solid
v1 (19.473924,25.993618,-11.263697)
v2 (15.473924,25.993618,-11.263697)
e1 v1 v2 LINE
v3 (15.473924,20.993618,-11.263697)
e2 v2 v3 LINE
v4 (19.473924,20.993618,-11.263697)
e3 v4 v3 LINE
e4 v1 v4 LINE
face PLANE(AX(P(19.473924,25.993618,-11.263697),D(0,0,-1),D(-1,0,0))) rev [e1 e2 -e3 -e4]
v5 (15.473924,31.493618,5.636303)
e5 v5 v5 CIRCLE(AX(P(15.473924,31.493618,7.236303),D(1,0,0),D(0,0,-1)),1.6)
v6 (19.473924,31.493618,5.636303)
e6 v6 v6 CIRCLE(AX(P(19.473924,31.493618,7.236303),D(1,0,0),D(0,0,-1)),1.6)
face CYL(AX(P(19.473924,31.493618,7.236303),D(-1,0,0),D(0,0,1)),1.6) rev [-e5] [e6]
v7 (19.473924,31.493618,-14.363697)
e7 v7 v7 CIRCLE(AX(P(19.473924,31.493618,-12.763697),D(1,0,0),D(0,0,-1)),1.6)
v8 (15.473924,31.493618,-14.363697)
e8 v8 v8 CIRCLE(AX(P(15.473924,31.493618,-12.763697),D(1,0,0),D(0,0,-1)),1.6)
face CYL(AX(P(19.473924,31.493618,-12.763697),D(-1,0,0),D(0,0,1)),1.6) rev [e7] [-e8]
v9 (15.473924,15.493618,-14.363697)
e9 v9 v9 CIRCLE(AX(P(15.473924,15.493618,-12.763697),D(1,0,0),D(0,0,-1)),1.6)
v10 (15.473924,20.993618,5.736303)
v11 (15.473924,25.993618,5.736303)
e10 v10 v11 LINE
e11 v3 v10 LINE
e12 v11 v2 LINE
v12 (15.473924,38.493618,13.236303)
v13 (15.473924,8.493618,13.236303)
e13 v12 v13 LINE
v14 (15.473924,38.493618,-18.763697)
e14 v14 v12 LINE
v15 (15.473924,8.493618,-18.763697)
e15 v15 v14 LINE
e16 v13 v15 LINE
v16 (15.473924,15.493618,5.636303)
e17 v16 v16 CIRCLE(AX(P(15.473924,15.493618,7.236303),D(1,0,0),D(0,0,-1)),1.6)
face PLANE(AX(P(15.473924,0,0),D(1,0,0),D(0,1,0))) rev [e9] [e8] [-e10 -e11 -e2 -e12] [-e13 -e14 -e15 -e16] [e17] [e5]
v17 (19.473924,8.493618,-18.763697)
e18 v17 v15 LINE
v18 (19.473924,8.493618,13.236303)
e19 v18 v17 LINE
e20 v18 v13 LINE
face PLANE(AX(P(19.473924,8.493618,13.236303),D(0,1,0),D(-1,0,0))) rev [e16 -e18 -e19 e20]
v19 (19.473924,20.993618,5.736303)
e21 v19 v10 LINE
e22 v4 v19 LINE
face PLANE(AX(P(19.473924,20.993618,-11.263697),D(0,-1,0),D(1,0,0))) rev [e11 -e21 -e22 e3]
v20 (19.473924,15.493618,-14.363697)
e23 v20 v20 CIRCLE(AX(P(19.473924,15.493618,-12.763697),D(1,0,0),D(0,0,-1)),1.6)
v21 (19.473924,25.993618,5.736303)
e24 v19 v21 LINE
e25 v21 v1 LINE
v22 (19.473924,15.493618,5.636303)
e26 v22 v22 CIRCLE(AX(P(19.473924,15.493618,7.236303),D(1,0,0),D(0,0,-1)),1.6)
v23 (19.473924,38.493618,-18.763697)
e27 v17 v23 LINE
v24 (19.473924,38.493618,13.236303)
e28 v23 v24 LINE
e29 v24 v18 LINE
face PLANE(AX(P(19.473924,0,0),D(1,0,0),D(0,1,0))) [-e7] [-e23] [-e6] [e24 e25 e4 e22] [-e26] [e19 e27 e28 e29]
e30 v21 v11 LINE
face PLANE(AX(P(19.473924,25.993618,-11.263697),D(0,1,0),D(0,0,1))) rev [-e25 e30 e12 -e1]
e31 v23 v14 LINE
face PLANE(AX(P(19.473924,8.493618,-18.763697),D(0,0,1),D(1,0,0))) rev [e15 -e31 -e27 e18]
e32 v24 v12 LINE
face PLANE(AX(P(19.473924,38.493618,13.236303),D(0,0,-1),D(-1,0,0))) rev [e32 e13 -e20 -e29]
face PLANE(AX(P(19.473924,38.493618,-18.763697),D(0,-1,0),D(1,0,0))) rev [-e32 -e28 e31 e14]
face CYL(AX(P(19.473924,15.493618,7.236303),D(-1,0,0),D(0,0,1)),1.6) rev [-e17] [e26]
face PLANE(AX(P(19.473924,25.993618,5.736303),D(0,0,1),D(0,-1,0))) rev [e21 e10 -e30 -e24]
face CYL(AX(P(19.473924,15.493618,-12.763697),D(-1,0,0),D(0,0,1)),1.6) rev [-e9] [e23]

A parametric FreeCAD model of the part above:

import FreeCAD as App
import Part
import Sketcher
from FreeCAD import Vector


def add_polygon(sketch, points):
    """Adds a closed chain of lines whose ends are joined by coincident constraints."""
    first, n = sketch.GeometryCount, len(points)
    for a, b in zip(points, points[1:] + points[:1]):
        sketch.addGeometry(Part.LineSegment(App.Vector(*a, 0), App.Vector(*b, 0)), False)
    for i in range(n):
        sketch.addConstraint(Sketcher.Constraint("Coincident", first + i, 2, first + (i + 1) % n, 1))

doc = App.newDocument("Part")
body = doc.addObject("PartDesign::Body", "Body")

# Sketch on YZ plane
sketch1 = doc.addObject("Sketcher::SketchObject", "Sketch")
body.addObject(sketch1)
sketch1.AttachmentSupport = (doc.YZ_Plane, [""])
sketch1.MapMode = "FlatFace"
sketch1.AttachmentOffset = App.Placement(Vector(0, 0, 15.473924), App.Rotation())
add_polygon(sketch1, [(38.5, 13.2), (8.5, 13.2), (8.5, -18.8), (38.5, -18.8)])  # lines 0-3
sketch1.addGeometry(Part.Circle(Vector(15.5, 7.2, 0), Vector(0, 0, 1), 1.6), False)  # 4
sketch1.addGeometry(Part.Circle(Vector(15.5, -12.8, 0), Vector(0, 0, 1), 1.6), False)  # 5
sketch1.addGeometry(Part.Circle(Vector(31.5, 7.2, 0), Vector(0, 0, 1), 1.6), False)  # 6
sketch1.addGeometry(Part.Circle(Vector(31.5, -12.8, 0), Vector(0, 0, 1), 1.6), False)  # 7
sketch1.addConstraint([
    Sketcher.Constraint("Horizontal", 0),
    Sketcher.Constraint("Vertical", 1),
    Sketcher.Constraint("Horizontal", 2),
    Sketcher.Constraint("Vertical", 3),
    Sketcher.Constraint("Equal", 4, 5),
    Sketcher.Constraint("Equal", 5, 6),
    Sketcher.Constraint("Equal", 6, 7),
    Sketcher.Constraint("Horizontal", 4, 3, 6, 3),
    Sketcher.Constraint("Horizontal", 5, 3, 7, 3),
    Sketcher.Constraint("Vertical", 4, 3, 5, 3),
    Sketcher.Constraint("Vertical", 6, 3, 7, 3),
    Sketcher.Constraint("Diameter", 4, 3.2),
    Sketcher.Constraint("DistanceX", 0, 2, 0, 1, 30.0),
    Sketcher.Constraint("DistanceY", 1, 2, 1, 1, 32.0),
    Sketcher.Constraint("DistanceY", 5, 3, 4, 3, 20.0),
    Sketcher.Constraint("DistanceX", 4, 3, 6, 3, 16.0),
    Sketcher.Constraint("DistanceX", 0, 2, 4, 3, 7.0),
    Sketcher.Constraint("DistanceY", 4, 3, 0, 2, 6.0),
    Sketcher.Constraint("DistanceX", -1, 1, 4, 3, 15.493618),
    Sketcher.Constraint("DistanceY", -1, 1, 4, 3, 7.236303),
])
pad1 = doc.addObject("PartDesign::Pad", "Pad")
body.addObject(pad1)
pad1.Profile = sketch1
pad1.Length = 4

# Sketch on YZ plane
sketch2 = doc.addObject("Sketcher::SketchObject", "Sketch001")
body.addObject(sketch2)
sketch2.AttachmentSupport = (doc.YZ_Plane, [""])
sketch2.MapMode = "FlatFace"
sketch2.AttachmentOffset = App.Placement(Vector(0, 0, 15.473924), App.Rotation())
add_polygon(sketch2, [(26, -11), (21, -11), (21, 6), (26, 6)])  # lines 0-3
sketch2.addConstraint([
    Sketcher.Constraint("Horizontal", 0),
    Sketcher.Constraint("Vertical", 1),
    Sketcher.Constraint("Horizontal", 2),
    Sketcher.Constraint("Vertical", 3),
    Sketcher.Constraint("DistanceX", 0, 2, 0, 1, 5.0),
    Sketcher.Constraint("DistanceY", 1, 1, 1, 2, 17.0),
    Sketcher.Constraint("DistanceX", -1, 1, 0, 2, 20.993618),
    Sketcher.Constraint("DistanceY", 0, 2, -1, 1, 11.263697),
])
pocket1 = doc.addObject("PartDesign::Pocket", "Pocket")
body.addObject(pocket1)
pocket1.Profile = sketch2
pocket1.Type = "ThroughAll"
pocket1.Reversed = True

doc.recompute()
